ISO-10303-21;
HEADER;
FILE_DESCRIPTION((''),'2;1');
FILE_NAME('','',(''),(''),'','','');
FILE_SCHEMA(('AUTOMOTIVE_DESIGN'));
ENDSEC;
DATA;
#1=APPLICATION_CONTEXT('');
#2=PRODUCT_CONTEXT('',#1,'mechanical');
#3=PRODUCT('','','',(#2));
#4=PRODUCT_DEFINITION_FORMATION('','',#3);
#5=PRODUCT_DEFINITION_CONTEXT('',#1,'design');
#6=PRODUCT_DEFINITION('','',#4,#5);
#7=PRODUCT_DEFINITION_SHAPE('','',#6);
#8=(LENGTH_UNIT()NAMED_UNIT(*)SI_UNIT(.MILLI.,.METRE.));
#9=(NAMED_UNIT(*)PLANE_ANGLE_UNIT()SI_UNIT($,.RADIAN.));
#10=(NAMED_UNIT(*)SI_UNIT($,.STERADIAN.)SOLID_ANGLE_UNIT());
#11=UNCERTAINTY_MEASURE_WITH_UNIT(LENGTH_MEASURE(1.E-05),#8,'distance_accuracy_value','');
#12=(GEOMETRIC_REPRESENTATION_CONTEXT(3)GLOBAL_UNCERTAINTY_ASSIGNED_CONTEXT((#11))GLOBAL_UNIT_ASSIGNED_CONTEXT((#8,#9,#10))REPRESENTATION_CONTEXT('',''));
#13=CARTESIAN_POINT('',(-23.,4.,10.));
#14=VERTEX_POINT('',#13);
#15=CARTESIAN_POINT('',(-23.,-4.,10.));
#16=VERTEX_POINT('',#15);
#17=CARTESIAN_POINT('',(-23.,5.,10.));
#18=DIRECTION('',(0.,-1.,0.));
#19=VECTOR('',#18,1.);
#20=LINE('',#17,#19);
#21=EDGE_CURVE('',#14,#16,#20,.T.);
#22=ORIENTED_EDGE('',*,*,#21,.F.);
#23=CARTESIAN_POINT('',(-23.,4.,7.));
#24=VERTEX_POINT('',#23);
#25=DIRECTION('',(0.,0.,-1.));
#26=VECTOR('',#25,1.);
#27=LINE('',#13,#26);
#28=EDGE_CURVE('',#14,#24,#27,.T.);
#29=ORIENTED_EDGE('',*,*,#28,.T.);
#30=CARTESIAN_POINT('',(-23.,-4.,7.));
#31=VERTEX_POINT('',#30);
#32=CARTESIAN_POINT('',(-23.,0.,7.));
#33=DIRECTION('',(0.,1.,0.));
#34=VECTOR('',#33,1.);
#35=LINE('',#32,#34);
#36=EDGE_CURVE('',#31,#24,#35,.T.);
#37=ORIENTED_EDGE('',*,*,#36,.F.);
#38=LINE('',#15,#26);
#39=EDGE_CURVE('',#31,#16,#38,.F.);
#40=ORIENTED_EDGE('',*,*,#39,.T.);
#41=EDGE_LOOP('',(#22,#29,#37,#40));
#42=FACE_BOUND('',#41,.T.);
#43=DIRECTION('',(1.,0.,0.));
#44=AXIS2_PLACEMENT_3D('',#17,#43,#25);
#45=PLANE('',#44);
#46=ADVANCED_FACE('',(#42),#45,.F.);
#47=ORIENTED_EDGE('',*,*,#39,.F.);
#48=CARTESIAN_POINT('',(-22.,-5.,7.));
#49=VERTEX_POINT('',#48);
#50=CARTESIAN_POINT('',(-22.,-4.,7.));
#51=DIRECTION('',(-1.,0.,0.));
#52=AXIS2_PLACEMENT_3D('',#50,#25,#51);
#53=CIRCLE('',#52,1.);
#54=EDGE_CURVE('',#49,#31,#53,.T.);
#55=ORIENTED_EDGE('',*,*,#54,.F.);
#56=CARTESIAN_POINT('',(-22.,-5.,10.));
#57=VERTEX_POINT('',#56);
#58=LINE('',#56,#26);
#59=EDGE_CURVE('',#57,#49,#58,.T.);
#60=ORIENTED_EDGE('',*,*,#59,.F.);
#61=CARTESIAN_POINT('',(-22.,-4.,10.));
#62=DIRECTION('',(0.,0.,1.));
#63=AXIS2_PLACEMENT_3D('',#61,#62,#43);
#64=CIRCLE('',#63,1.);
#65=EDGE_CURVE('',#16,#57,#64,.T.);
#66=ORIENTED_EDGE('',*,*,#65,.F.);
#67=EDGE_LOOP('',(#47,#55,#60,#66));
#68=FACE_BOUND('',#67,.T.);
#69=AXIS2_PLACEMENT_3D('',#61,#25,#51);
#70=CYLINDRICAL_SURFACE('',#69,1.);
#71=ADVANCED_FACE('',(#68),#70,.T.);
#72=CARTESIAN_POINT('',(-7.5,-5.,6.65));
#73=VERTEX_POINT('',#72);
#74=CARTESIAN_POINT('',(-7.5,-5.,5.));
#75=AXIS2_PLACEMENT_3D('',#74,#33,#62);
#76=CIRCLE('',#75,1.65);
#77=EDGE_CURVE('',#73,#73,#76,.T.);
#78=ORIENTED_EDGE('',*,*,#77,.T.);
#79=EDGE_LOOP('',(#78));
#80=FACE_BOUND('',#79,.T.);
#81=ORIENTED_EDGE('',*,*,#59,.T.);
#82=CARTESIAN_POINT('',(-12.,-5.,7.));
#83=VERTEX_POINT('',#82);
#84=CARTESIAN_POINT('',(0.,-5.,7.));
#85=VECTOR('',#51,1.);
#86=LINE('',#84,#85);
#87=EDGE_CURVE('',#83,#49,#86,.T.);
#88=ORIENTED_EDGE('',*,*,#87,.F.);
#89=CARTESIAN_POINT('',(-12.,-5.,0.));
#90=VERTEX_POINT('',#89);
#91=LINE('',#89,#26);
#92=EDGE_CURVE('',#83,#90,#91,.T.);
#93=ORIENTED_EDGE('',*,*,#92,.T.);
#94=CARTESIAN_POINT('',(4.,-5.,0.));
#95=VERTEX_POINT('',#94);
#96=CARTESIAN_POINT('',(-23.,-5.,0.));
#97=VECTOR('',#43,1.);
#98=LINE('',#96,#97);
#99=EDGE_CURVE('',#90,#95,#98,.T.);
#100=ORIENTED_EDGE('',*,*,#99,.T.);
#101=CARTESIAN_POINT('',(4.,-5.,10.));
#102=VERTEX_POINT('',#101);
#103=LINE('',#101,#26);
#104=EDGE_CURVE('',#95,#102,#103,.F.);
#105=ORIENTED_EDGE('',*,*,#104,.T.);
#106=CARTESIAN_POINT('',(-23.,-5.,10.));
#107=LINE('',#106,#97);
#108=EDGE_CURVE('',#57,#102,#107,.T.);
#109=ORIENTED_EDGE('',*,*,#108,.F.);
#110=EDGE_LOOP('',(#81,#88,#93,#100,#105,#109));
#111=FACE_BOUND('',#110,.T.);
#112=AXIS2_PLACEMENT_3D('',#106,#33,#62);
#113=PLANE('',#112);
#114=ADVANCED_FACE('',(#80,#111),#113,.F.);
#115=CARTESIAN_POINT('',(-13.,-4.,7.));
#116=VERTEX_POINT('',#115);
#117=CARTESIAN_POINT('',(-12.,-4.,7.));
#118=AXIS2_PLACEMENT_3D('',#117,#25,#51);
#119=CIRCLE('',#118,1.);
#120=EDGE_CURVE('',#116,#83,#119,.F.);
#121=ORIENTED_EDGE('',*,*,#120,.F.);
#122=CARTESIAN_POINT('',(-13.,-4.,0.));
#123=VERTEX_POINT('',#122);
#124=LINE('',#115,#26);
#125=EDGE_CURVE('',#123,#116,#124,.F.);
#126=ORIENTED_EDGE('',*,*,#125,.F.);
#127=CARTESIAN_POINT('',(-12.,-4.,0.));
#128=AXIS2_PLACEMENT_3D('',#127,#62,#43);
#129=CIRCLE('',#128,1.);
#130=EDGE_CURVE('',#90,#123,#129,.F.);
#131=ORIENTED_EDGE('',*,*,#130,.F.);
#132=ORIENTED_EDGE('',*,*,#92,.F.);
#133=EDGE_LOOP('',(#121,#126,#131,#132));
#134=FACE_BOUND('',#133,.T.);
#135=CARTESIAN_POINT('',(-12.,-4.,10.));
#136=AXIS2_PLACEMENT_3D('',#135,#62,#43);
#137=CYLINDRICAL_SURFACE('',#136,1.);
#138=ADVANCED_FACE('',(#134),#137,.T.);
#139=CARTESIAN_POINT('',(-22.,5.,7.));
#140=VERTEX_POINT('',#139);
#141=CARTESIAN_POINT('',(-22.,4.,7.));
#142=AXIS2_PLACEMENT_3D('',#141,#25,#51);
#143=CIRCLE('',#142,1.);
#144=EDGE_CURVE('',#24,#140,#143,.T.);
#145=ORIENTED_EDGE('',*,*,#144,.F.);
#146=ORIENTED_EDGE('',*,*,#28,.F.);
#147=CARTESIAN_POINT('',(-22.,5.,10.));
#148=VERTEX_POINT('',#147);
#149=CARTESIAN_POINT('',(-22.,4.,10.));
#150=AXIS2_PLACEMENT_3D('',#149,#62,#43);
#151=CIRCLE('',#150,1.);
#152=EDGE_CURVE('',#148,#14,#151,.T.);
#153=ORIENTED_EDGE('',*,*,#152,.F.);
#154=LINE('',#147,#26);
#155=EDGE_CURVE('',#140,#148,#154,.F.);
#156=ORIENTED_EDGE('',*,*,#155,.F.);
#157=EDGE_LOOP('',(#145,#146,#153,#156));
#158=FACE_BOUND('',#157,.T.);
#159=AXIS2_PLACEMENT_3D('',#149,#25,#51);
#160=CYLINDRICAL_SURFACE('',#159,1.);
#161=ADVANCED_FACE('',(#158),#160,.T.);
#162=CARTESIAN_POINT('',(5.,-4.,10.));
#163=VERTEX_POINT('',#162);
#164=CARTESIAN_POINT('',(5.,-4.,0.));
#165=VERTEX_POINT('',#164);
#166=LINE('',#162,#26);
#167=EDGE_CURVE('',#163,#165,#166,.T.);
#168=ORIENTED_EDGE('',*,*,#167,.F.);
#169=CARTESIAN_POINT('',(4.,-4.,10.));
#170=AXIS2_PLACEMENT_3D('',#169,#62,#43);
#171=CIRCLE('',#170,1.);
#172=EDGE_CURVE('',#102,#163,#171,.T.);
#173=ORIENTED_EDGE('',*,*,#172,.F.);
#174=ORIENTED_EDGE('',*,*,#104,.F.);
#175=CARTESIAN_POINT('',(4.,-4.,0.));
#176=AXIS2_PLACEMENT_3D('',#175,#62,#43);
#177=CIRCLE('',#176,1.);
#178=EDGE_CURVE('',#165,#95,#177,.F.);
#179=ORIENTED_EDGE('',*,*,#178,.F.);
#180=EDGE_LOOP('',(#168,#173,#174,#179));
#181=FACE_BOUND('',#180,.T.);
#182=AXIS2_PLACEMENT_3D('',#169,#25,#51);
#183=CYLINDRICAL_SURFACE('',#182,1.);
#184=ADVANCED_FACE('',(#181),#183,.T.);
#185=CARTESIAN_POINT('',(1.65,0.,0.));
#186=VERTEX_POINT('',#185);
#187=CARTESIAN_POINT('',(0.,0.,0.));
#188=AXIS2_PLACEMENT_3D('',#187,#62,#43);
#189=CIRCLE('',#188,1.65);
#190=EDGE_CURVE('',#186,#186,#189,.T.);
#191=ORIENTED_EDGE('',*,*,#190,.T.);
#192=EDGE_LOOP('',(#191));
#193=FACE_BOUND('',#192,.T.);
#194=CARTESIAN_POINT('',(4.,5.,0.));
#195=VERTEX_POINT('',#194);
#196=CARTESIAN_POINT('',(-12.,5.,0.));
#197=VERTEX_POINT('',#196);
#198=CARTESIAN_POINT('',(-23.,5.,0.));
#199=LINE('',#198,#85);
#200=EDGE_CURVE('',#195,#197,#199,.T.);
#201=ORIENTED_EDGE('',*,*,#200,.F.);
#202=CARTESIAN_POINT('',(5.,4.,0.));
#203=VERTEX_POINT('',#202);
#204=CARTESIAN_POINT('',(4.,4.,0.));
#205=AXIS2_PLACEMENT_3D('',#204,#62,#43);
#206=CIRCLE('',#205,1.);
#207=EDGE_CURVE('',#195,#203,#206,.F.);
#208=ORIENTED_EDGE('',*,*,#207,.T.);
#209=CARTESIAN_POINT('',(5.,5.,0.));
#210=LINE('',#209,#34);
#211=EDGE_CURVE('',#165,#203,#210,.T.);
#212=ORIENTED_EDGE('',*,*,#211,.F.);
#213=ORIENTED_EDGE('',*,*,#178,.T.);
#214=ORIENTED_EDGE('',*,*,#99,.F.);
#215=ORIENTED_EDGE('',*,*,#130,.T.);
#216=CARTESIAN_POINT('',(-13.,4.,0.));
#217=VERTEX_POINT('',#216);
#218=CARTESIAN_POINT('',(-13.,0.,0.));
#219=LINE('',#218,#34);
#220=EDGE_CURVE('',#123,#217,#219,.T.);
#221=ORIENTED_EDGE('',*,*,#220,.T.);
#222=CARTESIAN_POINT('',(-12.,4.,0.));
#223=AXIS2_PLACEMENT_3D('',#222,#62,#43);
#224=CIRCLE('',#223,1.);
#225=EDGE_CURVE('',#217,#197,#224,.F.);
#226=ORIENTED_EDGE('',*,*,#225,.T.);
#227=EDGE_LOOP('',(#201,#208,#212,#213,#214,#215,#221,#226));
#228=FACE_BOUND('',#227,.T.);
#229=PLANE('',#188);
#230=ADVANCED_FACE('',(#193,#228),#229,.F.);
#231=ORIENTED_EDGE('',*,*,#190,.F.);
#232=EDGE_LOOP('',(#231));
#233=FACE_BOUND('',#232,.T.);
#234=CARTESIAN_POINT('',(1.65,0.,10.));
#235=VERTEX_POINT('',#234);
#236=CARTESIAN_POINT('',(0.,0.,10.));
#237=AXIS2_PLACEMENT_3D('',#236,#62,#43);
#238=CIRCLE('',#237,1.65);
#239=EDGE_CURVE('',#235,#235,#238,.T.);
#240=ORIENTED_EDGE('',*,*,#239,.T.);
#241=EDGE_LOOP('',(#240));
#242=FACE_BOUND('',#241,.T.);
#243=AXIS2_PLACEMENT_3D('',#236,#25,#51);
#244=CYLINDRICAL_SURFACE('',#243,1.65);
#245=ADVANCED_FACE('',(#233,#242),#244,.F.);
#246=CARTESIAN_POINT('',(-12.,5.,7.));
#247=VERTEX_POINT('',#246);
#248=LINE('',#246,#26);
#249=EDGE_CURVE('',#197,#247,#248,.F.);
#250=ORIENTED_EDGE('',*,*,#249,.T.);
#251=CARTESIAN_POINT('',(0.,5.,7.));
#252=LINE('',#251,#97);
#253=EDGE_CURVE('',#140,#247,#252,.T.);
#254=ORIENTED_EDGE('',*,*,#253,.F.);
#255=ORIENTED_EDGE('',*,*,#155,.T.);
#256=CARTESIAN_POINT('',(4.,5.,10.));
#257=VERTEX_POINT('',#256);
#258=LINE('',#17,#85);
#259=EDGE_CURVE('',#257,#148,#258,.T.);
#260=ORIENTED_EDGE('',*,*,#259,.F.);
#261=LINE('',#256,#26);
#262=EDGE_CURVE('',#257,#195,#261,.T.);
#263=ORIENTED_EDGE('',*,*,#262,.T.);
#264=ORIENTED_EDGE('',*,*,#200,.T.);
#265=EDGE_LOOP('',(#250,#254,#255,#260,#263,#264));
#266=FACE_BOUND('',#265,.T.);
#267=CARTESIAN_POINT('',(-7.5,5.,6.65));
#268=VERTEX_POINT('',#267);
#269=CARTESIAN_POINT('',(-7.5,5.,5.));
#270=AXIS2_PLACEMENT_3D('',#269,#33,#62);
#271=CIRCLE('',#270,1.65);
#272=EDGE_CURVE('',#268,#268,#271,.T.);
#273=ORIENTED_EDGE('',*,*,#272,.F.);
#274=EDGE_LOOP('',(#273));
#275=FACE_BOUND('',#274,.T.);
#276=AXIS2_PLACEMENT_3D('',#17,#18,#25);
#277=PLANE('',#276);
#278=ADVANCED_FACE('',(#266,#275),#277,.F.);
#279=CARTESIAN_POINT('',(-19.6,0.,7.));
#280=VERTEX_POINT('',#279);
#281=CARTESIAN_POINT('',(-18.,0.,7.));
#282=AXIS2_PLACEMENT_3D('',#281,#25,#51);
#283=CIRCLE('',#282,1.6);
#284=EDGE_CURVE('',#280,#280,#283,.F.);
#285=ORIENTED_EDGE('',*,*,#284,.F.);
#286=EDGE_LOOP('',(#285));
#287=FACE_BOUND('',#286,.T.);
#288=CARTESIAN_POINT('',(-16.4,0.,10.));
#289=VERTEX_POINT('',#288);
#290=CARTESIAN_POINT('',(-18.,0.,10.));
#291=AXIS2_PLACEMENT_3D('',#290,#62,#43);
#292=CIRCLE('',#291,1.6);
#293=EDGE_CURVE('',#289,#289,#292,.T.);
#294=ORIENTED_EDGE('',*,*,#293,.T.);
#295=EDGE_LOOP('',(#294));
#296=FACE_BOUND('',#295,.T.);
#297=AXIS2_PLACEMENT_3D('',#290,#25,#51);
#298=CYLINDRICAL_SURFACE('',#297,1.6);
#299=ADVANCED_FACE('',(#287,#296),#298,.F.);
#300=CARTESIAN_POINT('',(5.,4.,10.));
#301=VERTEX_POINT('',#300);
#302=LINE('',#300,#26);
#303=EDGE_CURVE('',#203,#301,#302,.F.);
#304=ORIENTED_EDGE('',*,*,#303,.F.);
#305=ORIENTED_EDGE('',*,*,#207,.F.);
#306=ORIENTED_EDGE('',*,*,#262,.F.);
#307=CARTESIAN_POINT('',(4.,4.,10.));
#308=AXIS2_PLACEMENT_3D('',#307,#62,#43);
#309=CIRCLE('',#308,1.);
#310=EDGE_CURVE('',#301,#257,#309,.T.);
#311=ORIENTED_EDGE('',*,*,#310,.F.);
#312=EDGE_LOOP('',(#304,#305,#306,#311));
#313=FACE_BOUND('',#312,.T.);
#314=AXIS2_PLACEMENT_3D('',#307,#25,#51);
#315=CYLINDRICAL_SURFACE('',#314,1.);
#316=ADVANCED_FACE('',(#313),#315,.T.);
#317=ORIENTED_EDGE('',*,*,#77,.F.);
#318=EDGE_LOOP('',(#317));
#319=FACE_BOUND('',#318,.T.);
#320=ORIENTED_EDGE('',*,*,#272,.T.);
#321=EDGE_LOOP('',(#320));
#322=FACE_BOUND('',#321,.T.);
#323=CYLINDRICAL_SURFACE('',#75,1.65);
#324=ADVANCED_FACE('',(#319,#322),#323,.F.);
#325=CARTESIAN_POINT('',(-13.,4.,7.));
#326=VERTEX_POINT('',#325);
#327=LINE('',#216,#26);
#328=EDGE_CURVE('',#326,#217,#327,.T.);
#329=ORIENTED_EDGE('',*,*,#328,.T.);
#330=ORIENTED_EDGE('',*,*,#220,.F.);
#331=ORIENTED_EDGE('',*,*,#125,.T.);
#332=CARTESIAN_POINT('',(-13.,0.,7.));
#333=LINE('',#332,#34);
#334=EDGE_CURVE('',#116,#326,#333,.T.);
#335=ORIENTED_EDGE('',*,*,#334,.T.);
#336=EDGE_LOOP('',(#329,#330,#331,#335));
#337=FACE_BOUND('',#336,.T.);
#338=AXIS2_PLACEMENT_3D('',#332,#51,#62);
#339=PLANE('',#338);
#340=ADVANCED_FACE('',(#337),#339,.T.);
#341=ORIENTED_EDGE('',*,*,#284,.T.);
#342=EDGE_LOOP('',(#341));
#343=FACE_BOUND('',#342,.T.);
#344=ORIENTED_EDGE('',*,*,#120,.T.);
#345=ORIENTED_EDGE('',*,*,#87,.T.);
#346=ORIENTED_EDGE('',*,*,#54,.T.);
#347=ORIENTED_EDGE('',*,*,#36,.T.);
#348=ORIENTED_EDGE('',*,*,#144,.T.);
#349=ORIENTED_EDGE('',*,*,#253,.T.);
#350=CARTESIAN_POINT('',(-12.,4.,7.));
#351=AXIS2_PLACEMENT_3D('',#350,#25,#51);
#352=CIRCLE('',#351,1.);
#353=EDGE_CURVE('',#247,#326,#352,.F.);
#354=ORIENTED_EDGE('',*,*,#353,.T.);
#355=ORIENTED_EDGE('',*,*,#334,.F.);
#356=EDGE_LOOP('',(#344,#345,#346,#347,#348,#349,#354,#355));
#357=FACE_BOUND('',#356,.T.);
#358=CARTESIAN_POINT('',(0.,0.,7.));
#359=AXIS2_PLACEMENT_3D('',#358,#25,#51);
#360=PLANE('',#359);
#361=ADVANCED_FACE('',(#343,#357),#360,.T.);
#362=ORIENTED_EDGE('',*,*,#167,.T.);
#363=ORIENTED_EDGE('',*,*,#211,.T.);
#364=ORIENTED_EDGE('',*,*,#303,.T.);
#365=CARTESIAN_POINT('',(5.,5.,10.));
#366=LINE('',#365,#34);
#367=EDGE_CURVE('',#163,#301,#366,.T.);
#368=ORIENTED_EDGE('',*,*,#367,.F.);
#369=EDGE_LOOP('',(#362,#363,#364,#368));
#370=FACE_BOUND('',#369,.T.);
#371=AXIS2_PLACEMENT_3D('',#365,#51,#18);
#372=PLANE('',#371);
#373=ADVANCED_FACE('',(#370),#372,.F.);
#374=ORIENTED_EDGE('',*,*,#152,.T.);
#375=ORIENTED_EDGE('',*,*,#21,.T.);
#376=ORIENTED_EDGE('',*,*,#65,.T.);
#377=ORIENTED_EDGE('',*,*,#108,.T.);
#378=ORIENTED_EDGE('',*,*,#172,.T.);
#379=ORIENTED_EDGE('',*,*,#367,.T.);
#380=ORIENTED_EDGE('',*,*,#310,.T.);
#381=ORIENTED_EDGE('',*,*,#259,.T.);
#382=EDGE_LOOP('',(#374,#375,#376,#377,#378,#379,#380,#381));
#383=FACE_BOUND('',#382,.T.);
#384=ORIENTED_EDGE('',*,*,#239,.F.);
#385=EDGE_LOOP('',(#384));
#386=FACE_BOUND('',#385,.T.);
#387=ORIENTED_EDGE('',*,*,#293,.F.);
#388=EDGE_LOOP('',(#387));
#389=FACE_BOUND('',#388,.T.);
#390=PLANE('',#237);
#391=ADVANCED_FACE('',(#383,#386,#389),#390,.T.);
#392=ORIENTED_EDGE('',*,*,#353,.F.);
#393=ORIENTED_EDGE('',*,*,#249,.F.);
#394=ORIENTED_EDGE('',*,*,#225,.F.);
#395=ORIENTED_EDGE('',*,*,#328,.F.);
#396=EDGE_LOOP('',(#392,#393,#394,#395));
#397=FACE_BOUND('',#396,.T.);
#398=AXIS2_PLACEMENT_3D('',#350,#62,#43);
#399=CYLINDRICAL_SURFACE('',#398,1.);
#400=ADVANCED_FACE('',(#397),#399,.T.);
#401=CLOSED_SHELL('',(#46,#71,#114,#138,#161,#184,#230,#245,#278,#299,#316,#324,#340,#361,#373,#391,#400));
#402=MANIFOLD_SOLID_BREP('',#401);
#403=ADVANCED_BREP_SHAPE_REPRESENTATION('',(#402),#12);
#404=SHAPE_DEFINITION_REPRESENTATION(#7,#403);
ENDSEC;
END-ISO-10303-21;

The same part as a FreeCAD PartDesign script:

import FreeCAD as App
import Part
import Sketcher
from FreeCAD import Vector
Q = App.Units.Quantity


def edges_at(feature, points):
    """Names of the edges that pass closest to the given points."""
    edges = feature.Shape.Edges
    near = lambda p: min(range(len(edges)), key=lambda i: edges[i].distToShape(Part.Vertex(*p))[0])
    return sorted({f"Edge{near(p) + 1}" for p in points})


def add_polygon(sketch, points):
    """Adds a closed chain of lines whose ends are joined by coincident constraints."""
    first, n = sketch.GeometryCount, len(points)
    for a, b in zip(points, points[1:] + points[:1]):
        sketch.addGeometry(Part.LineSegment(App.Vector(*a, 0), App.Vector(*b, 0)), False)
    for i in range(n):
        sketch.addConstraint(Sketcher.Constraint("Coincident", first + i, 2, first + (i + 1) % n, 1))

doc = App.newDocument("Part")
body = doc.addObject("PartDesign::Body", "Body")

# Sketch on XY plane
sketch1 = doc.addObject("Sketcher::SketchObject", "Sketch")
body.addObject(sketch1)
sketch1.AttachmentSupport = (doc.XY_Plane, [""])
sketch1.MapMode = "FlatFace"
add_polygon(sketch1, [(-23, 5), (-23, -5), (5, -5), (5, 5)])  # lines 0-3
sketch1.addGeometry(Part.Circle(Vector(-18, 0, 0), Vector(0, 0, 1), 1.6), False)  # 4
sketch1.addGeometry(Part.Circle(Vector(0, 0, 0), Vector(0, 0, 1), 1.6), False)  # 5
sketch1.addConstraint(Sketcher.Constraint("Vertical", 0))
sketch1.addConstraint(Sketcher.Constraint("Horizontal", 1))
sketch1.addConstraint(Sketcher.Constraint("Vertical", 2))
sketch1.addConstraint(Sketcher.Constraint("Horizontal", 3))
sketch1.addConstraint(Sketcher.Constraint("Coincident", 5, 3, -1, 1))
sketch1.addConstraint(Sketcher.Constraint("PointOnObject", 4, 3, -1))
sketch1.addConstraint(Sketcher.Constraint("Diameter", 4, Q("3.2 mm")))
sketch1.addConstraint(Sketcher.Constraint("Diameter", 5, Q("3.3 mm")))
sketch1.addConstraint(Sketcher.Constraint("DistanceX", 1, 1, 1, 2, Q("28 mm")))
sketch1.addConstraint(Sketcher.Constraint("DistanceY", 0, 2, 0, 1, Q("10 mm")))
sketch1.addConstraint(Sketcher.Constraint("DistanceX", 4, 3, -1, 1, Q("18 mm")))
sketch1.addConstraint(Sketcher.Constraint("DistanceX", 0, 2, -1, 1, Q("23 mm")))
sketch1.addConstraint(Sketcher.Constraint("DistanceY", 0, 2, -1, 1, Q("5 mm")))
pad1 = doc.addObject("PartDesign::Pad", "Pad")
body.addObject(pad1)
pad1.Profile = sketch1
pad1.Length = 10

# Sketch on XZ plane
sketch2 = doc.addObject("Sketcher::SketchObject", "Sketch001")
body.addObject(sketch2)
sketch2.AttachmentSupport = (doc.XZ_Plane, [""])
sketch2.MapMode = "FlatFace"
sketch2.AttachmentOffset = App.Placement(Vector(0, 0, -5), App.Rotation())
sketch2.addGeometry(Part.Circle(Vector(-7.5, 5, 0), Vector(0, 0, 1), 1.6), False)
sketch2.addConstraint(Sketcher.Constraint("Diameter", 0, Q("3.3 mm")))
sketch2.addConstraint(Sketcher.Constraint("DistanceY", -1, 1, 0, 3, Q("5 mm")))
sketch2.addConstraint(Sketcher.Constraint("DistanceX", 0, 3, -1, 1, Q("7.5 mm")))
pocket1 = doc.addObject("PartDesign::Pocket", "Pocket")
body.addObject(pocket1)
pocket1.Profile = sketch2
pocket1.Type = "ThroughAll"
pocket1.Reversed = True

# Sketch on XY plane
sketch3 = doc.addObject("Sketcher::SketchObject", "Sketch002")
body.addObject(sketch3)
sketch3.AttachmentSupport = (doc.XY_Plane, [""])
sketch3.MapMode = "FlatFace"
add_polygon(sketch3, [(-13, 5), (-13, -5), (-23, -5), (-23, 5)])  # lines 0-3
sketch3.addGeometry(Part.Circle(Vector(-18, 0, 0), Vector(0, 0, 1), 1.6), False)  # 4
sketch3.addConstraint(Sketcher.Constraint("Vertical", 0))
sketch3.addConstraint(Sketcher.Constraint("Horizontal", 1))
sketch3.addConstraint(Sketcher.Constraint("Vertical", 2))
sketch3.addConstraint(Sketcher.Constraint("Horizontal", 3))
sketch3.addConstraint(Sketcher.Constraint("PointOnObject", 4, 3, -1))
sketch3.addConstraint(Sketcher.Constraint("Equal", 3, 0))
sketch3.addConstraint(Sketcher.Constraint("Diameter", 4, Q("3.2 mm")))
sketch3.addConstraint(Sketcher.Constraint("DistanceX", 1, 2, 1, 1, Q("10 mm")))
sketch3.addConstraint(Sketcher.Constraint("DistanceX", 4, 3, -1, 1, Q("18 mm")))
sketch3.addConstraint(Sketcher.Constraint("DistanceX", 0, 2, -1, 1, Q("13 mm")))
sketch3.addConstraint(Sketcher.Constraint("DistanceY", 0, 2, -1, 1, Q("5 mm")))
pocket2 = doc.addObject("PartDesign::Pocket", "Pocket001")
body.addObject(pocket2)
pocket2.Profile = sketch3
pocket2.Length = 7
pocket2.Reversed = True
doc.recompute()

fillet = doc.addObject("PartDesign::Fillet", "Fillet")
body.addObject(fillet)
fillet.Base = (pocket2, edges_at(pocket2, [
    (-13, -5, 3.5),
    (-13, 5, 3.5),
    (5, -5, 5),
    (-23, -5, 8.5),
    (-23, 5, 8.5),
    (5, 5, 5),
]))
fillet.Radius = 1

doc.recompute()
